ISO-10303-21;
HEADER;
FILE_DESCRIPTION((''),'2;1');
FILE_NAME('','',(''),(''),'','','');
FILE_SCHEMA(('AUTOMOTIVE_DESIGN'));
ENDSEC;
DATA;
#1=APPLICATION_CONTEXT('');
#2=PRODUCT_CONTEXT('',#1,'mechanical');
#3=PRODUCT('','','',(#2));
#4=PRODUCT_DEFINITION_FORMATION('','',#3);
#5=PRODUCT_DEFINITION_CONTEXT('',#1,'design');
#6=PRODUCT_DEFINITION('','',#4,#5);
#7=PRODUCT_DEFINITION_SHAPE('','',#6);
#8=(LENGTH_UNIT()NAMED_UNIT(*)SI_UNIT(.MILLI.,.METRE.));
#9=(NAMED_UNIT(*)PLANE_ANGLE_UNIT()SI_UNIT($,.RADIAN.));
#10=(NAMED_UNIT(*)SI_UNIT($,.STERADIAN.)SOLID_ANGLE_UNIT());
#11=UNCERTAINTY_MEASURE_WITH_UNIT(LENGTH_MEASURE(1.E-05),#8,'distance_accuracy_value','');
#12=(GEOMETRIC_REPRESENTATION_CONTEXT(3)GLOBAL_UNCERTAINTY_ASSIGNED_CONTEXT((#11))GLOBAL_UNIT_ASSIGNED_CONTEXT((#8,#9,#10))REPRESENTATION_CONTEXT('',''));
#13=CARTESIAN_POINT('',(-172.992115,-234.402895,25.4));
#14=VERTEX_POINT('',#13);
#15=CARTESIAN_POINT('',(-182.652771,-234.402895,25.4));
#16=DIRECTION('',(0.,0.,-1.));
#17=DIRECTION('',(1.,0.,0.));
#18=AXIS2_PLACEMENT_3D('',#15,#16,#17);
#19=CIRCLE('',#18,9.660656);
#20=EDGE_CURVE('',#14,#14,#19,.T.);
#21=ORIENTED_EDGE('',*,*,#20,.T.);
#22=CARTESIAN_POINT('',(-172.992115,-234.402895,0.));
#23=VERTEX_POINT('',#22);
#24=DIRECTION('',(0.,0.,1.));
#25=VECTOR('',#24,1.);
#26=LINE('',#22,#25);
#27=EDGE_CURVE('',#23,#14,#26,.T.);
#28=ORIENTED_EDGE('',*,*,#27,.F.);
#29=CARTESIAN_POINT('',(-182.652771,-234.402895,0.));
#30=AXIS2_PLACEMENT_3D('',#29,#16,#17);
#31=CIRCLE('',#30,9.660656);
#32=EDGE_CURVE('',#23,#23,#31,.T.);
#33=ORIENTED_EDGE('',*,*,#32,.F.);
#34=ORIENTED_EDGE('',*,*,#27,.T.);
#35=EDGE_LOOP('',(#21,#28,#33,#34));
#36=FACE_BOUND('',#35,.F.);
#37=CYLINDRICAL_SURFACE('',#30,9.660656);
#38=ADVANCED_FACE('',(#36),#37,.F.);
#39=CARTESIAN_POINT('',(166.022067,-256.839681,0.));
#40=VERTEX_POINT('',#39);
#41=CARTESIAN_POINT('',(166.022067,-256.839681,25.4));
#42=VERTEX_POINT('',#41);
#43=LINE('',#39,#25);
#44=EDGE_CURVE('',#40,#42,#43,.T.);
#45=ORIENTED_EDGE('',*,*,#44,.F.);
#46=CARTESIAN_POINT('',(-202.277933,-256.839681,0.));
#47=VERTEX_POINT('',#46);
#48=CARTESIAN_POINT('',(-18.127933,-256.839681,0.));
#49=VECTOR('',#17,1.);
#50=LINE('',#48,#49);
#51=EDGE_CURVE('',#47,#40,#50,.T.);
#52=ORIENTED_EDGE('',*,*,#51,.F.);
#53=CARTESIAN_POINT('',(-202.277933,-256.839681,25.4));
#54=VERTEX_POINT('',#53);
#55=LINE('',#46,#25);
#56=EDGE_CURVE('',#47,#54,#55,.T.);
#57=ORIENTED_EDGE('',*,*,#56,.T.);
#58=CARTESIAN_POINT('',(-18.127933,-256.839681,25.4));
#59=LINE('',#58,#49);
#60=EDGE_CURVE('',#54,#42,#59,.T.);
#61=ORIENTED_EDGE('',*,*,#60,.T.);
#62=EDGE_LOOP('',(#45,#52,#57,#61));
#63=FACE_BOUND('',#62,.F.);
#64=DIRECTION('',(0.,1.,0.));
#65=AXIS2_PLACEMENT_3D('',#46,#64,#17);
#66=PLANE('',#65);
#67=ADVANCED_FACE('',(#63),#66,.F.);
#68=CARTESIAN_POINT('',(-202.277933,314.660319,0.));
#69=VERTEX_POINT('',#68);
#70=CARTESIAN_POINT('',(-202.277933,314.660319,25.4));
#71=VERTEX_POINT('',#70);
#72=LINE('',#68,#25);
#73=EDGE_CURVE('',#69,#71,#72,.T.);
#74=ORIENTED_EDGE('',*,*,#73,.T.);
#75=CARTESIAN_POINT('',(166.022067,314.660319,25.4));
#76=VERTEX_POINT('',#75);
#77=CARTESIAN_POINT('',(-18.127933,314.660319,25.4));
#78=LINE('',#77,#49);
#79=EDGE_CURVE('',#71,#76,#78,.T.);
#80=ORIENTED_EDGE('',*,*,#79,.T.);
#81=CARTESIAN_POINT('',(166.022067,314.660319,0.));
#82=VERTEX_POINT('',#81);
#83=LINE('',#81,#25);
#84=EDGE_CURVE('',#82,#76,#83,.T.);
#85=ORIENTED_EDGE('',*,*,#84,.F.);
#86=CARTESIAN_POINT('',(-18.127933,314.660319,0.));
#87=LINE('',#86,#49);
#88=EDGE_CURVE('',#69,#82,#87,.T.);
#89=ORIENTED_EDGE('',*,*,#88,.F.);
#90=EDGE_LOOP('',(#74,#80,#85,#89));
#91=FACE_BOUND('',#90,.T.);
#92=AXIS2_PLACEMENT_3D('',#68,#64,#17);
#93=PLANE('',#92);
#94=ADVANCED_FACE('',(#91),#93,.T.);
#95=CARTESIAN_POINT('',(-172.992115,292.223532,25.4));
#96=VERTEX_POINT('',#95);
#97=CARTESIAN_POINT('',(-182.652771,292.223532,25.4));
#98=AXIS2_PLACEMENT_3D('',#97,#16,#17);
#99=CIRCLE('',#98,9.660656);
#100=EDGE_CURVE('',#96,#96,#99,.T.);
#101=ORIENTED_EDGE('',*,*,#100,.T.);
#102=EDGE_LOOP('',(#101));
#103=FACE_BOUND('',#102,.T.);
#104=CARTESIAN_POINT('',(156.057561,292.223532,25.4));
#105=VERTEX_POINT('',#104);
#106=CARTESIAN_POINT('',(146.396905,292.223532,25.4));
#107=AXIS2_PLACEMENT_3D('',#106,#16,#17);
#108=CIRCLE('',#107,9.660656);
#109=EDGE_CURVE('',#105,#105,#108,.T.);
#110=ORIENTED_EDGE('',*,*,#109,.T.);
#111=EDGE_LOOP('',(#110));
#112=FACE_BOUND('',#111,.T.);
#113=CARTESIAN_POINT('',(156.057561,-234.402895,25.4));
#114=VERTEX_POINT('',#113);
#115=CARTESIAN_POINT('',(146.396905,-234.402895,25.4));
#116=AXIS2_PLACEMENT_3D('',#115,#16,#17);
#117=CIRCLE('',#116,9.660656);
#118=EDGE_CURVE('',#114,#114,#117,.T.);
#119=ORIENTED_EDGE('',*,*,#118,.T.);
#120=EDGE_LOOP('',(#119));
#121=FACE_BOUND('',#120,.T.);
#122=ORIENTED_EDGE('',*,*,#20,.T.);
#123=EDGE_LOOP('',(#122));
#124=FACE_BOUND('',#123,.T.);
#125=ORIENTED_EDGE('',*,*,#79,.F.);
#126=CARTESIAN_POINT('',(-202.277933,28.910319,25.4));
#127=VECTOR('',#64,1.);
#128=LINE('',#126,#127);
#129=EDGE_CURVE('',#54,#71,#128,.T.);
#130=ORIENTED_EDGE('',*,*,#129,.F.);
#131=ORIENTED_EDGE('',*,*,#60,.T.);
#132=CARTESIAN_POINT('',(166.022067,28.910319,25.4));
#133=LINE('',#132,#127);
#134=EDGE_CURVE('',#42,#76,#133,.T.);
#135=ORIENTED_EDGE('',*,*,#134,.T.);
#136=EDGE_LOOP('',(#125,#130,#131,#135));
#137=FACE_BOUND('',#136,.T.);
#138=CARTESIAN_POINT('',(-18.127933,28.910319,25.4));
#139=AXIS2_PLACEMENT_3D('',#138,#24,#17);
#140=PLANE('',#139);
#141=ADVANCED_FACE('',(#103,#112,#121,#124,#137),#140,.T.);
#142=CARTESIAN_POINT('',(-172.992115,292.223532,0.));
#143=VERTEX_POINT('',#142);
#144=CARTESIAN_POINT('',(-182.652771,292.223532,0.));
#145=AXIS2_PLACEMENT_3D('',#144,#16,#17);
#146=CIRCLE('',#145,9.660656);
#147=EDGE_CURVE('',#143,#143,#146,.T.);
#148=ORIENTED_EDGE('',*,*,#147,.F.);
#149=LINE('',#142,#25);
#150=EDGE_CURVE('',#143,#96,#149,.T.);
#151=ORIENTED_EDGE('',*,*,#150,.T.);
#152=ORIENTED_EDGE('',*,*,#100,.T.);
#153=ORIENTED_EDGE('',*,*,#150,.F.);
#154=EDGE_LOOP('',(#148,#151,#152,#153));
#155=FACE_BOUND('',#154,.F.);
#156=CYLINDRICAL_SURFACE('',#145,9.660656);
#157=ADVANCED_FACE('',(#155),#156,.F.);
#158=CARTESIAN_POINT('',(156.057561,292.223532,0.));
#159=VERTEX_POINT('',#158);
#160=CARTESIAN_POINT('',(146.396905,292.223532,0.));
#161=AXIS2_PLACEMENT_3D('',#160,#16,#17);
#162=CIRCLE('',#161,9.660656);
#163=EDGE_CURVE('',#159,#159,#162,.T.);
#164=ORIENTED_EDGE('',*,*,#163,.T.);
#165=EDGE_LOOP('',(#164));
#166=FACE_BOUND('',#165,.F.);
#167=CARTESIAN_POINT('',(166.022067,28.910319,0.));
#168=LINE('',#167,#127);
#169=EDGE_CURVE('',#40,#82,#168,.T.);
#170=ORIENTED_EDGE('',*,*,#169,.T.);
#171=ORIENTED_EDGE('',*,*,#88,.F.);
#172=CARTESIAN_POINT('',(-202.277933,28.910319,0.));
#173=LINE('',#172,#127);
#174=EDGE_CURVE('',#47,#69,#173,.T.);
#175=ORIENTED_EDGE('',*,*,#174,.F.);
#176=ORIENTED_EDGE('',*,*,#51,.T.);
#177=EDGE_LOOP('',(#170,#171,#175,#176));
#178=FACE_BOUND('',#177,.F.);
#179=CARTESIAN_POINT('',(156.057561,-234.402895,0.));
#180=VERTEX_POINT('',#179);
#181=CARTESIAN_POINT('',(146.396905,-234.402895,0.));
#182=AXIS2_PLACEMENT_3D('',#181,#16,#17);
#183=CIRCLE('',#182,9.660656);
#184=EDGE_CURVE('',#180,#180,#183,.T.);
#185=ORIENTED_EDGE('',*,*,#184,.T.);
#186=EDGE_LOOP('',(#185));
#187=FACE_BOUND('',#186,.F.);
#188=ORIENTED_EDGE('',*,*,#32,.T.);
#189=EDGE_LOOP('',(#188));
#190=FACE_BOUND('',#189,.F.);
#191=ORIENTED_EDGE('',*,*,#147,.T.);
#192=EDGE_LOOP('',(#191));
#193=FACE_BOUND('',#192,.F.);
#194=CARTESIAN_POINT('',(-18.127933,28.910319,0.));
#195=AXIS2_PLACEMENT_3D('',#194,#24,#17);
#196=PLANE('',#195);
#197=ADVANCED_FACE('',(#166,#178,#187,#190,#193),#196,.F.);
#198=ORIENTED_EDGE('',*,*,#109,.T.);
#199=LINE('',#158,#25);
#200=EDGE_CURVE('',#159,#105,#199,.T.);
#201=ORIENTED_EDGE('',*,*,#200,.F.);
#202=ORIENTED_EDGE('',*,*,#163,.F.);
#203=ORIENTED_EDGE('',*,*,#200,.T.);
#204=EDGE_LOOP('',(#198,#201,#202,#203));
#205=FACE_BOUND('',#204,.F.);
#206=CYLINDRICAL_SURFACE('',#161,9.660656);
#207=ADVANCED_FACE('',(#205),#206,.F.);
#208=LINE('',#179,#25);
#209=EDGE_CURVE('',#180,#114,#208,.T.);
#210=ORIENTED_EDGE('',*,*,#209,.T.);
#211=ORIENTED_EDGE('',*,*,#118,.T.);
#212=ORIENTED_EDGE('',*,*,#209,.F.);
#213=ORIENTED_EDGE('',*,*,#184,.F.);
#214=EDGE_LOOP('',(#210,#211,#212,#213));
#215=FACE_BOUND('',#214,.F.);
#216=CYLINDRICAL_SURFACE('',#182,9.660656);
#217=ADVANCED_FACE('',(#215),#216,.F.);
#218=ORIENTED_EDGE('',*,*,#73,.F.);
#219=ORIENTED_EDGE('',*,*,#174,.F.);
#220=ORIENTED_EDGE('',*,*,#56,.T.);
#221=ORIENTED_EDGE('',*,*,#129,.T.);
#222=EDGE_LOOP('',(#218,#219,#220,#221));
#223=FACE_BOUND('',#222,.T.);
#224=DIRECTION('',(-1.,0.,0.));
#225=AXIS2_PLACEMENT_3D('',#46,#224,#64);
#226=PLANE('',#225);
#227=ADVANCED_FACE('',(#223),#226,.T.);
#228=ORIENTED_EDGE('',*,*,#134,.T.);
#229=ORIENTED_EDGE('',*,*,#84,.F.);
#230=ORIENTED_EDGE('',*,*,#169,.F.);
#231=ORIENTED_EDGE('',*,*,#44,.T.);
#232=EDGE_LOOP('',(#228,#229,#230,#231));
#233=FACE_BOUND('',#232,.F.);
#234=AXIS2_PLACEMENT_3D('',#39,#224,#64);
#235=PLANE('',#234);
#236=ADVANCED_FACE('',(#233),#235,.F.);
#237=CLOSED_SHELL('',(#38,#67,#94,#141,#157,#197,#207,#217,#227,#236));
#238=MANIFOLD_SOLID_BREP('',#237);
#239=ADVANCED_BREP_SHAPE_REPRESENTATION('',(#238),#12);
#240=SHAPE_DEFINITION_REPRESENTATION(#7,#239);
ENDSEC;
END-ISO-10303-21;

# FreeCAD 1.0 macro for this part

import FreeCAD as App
import Part
import Sketcher
Q = App.Units.Quantity

doc = App.newDocument("Part")
body = doc.addObject("PartDesign::Body", "Body")

# Sketch on XY plane
sketch1 = body.newObject("Sketcher::SketchObject", "Sketch")
sketch1.AttachmentSupport = (doc.getObject("XY_Plane"), [""])
sketch1.MapMode = "FlatFace"
sketch1.addGeometry([
    Part.LineSegment(App.Vector(-202, 315, 0), App.Vector(-202, -257, 0)),
    Part.LineSegment(App.Vector(-202, -257, 0), App.Vector(166, -257, 0)),
    Part.LineSegment(App.Vector(166, -257, 0), App.Vector(166, 315, 0)),
    Part.LineSegment(App.Vector(166, 315, 0), App.Vector(-202, 315, 0)),
], False)
sketch1.addConstraint([
    Sketcher.Constraint("Coincident", 0, 2, 1, 1),
    Sketcher.Constraint("Coincident", 1, 2, 2, 1),
    Sketcher.Constraint("Coincident", 2, 2, 3, 1),
    Sketcher.Constraint("Coincident", 3, 2, 0, 1),
    Sketcher.Constraint("Vertical", 0),
    Sketcher.Constraint("Horizontal", 1),
    Sketcher.Constraint("Vertical", 2),
    Sketcher.Constraint("Horizontal", 3),
    Sketcher.Constraint("DistanceX", 1, 1, 1, 2, Q("14.5 in")),
    Sketcher.Constraint("DistanceY", 0, 2, 0, 1, Q("22.5 in")),
    Sketcher.Constraint("DistanceY", 0, 2, -1, 1, Q("256.839681 mm")),
    Sketcher.Constraint("DistanceX", 0, 2, -1, 1, Q("202.277933 mm")),
])
pad1 = body.newObject("PartDesign::Pad", "Pad")
pad1.Profile = sketch1
pad1.Length = Q("1 in")

# Sketch on XY plane
sketch2 = body.newObject("Sketcher::SketchObject", "Sketch001")
sketch2.AttachmentSupport = (doc.getObject("XY_Plane"), [""])
sketch2.MapMode = "FlatFace"
sketch2.addGeometry([
    Part.Circle(App.Vector(-183, -234, 0), App.Vector(0, 0, 1), 10),
    Part.Circle(App.Vector(146, -234, 0), App.Vector(0, 0, 1), 10),
    Part.Circle(App.Vector(-183, 292, 0), App.Vector(0, 0, 1), 10),
    Part.Circle(App.Vector(146, 292, 0), App.Vector(0, 0, 1), 10),
], False)
sketch2.addConstraint([
    Sketcher.Constraint("Equal", 0, 1),
    Sketcher.Constraint("Equal", 1, 2),
    Sketcher.Constraint("Equal", 2, 3),
    Sketcher.Constraint("Horizontal", 0, 3, 1, 3),
    Sketcher.Constraint("Horizontal", 2, 3, 3, 3),
    Sketcher.Constraint("Vertical", 0, 3, 2, 3),
    Sketcher.Constraint("Vertical", 1, 3, 3, 3),
    Sketcher.Constraint("Diameter", 0, Q("19.321312 mm")),
    Sketcher.Constraint("DistanceX", 0, 3, -1, 1, Q("182.652771 mm")),
    Sketcher.Constraint("DistanceY", -1, 1, 2, 3, Q("292.223532 mm")),
    Sketcher.Constraint("DistanceY", 0, 3, -1, 1, Q("234.402895 mm")),
    Sketcher.Constraint("DistanceX", -1, 1, 1, 3, Q("146.396905 mm")),
])
pocket1 = body.newObject("PartDesign::Pocket", "Pocket")
pocket1.Profile = sketch2
pocket1.Length = Q("1 in")
pocket1.Reversed = True

doc.recompute()
